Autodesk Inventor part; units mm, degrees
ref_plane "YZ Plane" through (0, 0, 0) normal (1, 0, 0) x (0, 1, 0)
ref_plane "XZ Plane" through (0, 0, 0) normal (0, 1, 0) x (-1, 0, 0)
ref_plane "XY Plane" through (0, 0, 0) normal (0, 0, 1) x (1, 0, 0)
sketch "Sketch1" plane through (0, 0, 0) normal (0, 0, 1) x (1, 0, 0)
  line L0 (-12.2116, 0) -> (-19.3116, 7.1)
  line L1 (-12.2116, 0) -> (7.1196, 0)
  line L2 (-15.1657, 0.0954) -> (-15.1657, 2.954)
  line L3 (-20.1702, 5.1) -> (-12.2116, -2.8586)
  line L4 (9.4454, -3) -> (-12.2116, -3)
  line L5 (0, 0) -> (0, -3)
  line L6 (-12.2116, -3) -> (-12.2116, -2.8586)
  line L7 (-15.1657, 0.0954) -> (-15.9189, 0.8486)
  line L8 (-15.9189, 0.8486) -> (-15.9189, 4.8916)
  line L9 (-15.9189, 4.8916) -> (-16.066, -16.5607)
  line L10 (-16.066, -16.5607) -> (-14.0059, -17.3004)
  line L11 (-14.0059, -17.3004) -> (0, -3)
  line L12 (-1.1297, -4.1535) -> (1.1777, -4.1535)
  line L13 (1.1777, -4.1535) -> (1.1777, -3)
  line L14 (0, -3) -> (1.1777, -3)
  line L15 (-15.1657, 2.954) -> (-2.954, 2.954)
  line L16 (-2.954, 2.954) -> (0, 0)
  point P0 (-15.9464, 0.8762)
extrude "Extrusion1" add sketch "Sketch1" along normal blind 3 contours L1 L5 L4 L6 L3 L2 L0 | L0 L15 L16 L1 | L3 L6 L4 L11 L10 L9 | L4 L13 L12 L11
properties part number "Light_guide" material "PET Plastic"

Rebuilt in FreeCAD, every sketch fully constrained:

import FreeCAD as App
import Part
import Sketcher
Q = App.Units.Quantity


def add_polygon(sketch, points):
    """Adds a closed chain of lines whose ends are joined by coincident constraints."""
    first, n = sketch.GeometryCount, len(points)
    for a, b in zip(points, points[1:] + points[:1]):
        sketch.addGeometry(Part.LineSegment(App.Vector(*a, 0), App.Vector(*b, 0)), False)
    for i in range(n):
        sketch.addConstraint(Sketcher.Constraint("Coincident", first + i, 2, first + (i + 1) % n, 1))

doc = App.newDocument("Part")
body = doc.addObject("PartDesign::Body", "Body")

sketch1 = body.newObject("Sketcher::SketchObject", "Sketch")
sketch1.AttachmentSupport = (doc.getObject("XY_Plane"), [""])
sketch1.MapMode = "FlatFace"
add_polygon(sketch1, [(0, -3), (0, 0), (-3, 3), (-15.2, 3), (-15.2, 0.1), (-15.9, 0.9), (-16.1, -16.6), (-14, -17.3), (-1.1, -4.2), (1.2, -4.2), (1.2, -3)])
sketch1.addConstraint([
    Sketcher.Constraint("Vertical", 0),
    Sketcher.Constraint("Horizontal", 2),
    Sketcher.Constraint("Vertical", 3),
    Sketcher.Constraint("Horizontal", 8),
    Sketcher.Constraint("Vertical", 9),
    Sketcher.Constraint("Horizontal", 10),
    Sketcher.Constraint("Coincident", 0, 2, -1, 1),
    Sketcher.Constraint("Parallel", 1, 4),
    Sketcher.Constraint("DistanceY", 0, 1, 0, 2, Q("3 mm")),
    Sketcher.Constraint("Angle", 1, Q("135 deg")),
    Sketcher.Constraint("Angle", 6, Q("-19.7512 deg")),
    Sketcher.Constraint("DistanceX", 5, 2, 6, 2, Q("2.06 mm")),
    Sketcher.Constraint("Distance", 7, Q("18.402 mm")),
    Sketcher.Constraint("DistanceX", 2, 2, 2, 1, Q("12.2117 mm")),
    Sketcher.Constraint("DistanceX", 8, 1, 8, 2, Q("2.3074 mm")),
    Sketcher.Constraint("DistanceX", 10, 2, 10, 1, Q("1.1777 mm")),
    Sketcher.Constraint("DistanceY", 3, 2, 3, 1, Q("2.8586 mm")),
    Sketcher.Constraint("DistanceY", 9, 1, 9, 2, Q("1.1535 mm")),
    Sketcher.Constraint("DistanceX", 1, 2, -1, 1, Q("2.954 mm")),
    Sketcher.Constraint("DistanceX", 5, 2, -1, 1, Q("16.066 mm")),
    Sketcher.Constraint("DistanceY", 5, 2, 4, 2, Q("17.437 mm")),
])
pad1 = body.newObject("PartDesign::Pad", "Pad")
pad1.Profile = sketch1
pad1.Length = 3

doc.recompute()
